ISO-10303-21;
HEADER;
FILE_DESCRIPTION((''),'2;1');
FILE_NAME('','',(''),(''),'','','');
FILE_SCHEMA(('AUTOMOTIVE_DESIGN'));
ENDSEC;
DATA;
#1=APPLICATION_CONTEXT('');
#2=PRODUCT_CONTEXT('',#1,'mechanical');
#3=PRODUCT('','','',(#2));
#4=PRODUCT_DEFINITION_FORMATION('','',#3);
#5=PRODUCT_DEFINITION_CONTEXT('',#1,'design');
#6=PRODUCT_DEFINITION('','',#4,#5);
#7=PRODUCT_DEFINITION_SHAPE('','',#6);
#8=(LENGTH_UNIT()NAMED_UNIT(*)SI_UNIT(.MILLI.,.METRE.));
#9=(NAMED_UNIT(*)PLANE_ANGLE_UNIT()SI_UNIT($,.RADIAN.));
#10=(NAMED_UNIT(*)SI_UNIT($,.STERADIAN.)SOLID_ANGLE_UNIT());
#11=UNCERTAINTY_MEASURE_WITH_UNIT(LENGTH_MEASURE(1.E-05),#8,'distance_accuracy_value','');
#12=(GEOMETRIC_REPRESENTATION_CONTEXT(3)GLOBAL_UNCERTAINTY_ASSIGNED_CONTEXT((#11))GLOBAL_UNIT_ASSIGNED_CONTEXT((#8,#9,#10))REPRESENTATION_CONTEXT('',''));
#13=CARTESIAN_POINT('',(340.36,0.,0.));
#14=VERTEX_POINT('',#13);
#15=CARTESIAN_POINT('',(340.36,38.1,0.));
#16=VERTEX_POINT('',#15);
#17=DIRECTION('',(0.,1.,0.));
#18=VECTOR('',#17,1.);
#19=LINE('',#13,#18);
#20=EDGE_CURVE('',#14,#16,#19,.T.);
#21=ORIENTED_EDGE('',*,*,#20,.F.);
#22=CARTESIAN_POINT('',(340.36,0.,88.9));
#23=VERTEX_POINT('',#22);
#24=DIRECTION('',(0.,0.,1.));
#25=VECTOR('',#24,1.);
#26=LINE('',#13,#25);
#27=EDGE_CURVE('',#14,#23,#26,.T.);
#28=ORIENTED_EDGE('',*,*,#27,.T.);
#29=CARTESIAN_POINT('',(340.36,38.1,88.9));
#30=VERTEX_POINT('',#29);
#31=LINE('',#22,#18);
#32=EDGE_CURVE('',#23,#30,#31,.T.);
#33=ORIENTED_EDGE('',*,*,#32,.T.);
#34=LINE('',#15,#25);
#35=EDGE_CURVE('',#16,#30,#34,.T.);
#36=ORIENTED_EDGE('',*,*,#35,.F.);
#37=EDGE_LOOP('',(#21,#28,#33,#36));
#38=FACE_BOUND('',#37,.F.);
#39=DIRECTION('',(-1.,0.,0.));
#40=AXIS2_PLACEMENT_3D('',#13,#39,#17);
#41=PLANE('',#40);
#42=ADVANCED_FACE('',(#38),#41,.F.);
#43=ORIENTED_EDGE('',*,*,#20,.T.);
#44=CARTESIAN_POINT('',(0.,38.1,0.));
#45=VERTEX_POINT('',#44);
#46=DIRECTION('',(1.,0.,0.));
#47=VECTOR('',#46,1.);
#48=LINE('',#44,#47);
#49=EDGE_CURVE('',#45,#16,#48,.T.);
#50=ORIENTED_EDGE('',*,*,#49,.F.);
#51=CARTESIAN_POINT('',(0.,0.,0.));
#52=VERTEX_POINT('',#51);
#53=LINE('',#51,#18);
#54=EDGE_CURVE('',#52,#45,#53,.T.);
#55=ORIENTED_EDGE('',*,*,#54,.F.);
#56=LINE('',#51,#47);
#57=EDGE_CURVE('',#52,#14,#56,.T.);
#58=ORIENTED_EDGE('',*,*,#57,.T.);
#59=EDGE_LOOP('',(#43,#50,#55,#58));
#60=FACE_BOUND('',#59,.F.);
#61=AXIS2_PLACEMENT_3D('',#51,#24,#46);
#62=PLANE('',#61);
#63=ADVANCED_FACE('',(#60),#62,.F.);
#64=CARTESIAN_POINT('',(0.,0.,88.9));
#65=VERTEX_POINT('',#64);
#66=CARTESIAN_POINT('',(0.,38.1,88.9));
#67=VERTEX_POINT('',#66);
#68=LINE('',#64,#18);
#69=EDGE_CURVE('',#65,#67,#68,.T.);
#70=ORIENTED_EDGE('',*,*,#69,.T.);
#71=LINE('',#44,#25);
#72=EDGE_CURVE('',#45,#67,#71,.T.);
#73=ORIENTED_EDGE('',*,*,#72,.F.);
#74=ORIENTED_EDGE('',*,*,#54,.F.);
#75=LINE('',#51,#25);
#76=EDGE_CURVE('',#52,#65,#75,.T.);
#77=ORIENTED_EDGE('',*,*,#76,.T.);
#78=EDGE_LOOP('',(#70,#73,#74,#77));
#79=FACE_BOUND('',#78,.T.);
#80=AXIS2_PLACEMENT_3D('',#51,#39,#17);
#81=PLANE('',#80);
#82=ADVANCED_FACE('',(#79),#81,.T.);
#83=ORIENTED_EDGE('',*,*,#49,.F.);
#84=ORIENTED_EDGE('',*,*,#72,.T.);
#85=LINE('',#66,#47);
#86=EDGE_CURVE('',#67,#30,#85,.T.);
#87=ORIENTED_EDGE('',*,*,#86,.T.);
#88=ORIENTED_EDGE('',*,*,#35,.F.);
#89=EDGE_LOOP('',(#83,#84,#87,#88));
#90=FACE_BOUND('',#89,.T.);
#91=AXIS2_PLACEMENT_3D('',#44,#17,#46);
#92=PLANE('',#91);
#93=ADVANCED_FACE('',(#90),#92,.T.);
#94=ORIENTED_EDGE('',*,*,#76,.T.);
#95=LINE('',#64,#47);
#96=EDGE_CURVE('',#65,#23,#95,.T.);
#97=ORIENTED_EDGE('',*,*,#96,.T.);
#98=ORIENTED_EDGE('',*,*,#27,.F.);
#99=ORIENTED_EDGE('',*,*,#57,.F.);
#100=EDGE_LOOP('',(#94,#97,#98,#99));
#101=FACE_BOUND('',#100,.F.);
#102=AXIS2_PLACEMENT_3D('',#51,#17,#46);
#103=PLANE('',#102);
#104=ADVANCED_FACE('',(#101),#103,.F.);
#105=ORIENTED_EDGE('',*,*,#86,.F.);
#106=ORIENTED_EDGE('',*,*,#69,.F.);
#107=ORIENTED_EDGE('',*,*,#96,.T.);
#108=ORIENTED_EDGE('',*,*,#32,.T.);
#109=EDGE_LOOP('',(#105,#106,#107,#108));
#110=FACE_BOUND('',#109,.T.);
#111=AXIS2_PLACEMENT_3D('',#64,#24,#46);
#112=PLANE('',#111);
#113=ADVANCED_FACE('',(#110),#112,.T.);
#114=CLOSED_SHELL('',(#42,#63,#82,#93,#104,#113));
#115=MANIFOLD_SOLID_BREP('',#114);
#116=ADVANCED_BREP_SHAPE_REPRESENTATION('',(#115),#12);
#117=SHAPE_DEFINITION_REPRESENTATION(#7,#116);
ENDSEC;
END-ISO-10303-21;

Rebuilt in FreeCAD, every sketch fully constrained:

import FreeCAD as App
import Part
import Sketcher
from FreeCAD import Vector
Q = App.Units.Quantity

doc = App.newDocument("Part")
body = doc.addObject("PartDesign::Body", "Body")

sketch1 = doc.addObject("Sketcher::SketchObject", "Sketch")
body.addObject(sketch1)
sketch1.AttachmentSupport = (doc.XY_Plane, [""])
sketch1.MapMode = "FlatFace"
sketch1.addGeometry(Part.LineSegment(Vector(0, 38, 0), Vector(0, 0, 0)), False)
sketch1.addGeometry(Part.LineSegment(Vector(0, 0, 0), Vector(340, 0, 0)), False)
sketch1.addGeometry(Part.LineSegment(Vector(340, 0, 0), Vector(340, 38, 0)), False)
sketch1.addGeometry(Part.LineSegment(Vector(340, 38, 0), Vector(0, 38, 0)), False)
sketch1.addConstraint(Sketcher.Constraint("Coincident", 0, 2, 1, 1))
sketch1.addConstraint(Sketcher.Constraint("Coincident", 1, 2, 2, 1))
sketch1.addConstraint(Sketcher.Constraint("Coincident", 2, 2, 3, 1))
sketch1.addConstraint(Sketcher.Constraint("Coincident", 3, 2, 0, 1))
sketch1.addConstraint(Sketcher.Constraint("Vertical", 0))
sketch1.addConstraint(Sketcher.Constraint("Horizontal", 1))
sketch1.addConstraint(Sketcher.Constraint("Vertical", 2))
sketch1.addConstraint(Sketcher.Constraint("Horizontal", 3))
sketch1.addConstraint(Sketcher.Constraint("Coincident", 0, 2, -1, 1))
sketch1.addConstraint(Sketcher.Constraint("DistanceX", 1, 1, 1, 2, Q("13.4 in")))
sketch1.addConstraint(Sketcher.Constraint("DistanceY", 0, 2, 0, 1, Q("1.5 in")))
pad1 = doc.addObject("PartDesign::Pad", "Pad")
body.addObject(pad1)
pad1.Profile = sketch1
pad1.Length = Q("3.5 in")

doc.recompute()
